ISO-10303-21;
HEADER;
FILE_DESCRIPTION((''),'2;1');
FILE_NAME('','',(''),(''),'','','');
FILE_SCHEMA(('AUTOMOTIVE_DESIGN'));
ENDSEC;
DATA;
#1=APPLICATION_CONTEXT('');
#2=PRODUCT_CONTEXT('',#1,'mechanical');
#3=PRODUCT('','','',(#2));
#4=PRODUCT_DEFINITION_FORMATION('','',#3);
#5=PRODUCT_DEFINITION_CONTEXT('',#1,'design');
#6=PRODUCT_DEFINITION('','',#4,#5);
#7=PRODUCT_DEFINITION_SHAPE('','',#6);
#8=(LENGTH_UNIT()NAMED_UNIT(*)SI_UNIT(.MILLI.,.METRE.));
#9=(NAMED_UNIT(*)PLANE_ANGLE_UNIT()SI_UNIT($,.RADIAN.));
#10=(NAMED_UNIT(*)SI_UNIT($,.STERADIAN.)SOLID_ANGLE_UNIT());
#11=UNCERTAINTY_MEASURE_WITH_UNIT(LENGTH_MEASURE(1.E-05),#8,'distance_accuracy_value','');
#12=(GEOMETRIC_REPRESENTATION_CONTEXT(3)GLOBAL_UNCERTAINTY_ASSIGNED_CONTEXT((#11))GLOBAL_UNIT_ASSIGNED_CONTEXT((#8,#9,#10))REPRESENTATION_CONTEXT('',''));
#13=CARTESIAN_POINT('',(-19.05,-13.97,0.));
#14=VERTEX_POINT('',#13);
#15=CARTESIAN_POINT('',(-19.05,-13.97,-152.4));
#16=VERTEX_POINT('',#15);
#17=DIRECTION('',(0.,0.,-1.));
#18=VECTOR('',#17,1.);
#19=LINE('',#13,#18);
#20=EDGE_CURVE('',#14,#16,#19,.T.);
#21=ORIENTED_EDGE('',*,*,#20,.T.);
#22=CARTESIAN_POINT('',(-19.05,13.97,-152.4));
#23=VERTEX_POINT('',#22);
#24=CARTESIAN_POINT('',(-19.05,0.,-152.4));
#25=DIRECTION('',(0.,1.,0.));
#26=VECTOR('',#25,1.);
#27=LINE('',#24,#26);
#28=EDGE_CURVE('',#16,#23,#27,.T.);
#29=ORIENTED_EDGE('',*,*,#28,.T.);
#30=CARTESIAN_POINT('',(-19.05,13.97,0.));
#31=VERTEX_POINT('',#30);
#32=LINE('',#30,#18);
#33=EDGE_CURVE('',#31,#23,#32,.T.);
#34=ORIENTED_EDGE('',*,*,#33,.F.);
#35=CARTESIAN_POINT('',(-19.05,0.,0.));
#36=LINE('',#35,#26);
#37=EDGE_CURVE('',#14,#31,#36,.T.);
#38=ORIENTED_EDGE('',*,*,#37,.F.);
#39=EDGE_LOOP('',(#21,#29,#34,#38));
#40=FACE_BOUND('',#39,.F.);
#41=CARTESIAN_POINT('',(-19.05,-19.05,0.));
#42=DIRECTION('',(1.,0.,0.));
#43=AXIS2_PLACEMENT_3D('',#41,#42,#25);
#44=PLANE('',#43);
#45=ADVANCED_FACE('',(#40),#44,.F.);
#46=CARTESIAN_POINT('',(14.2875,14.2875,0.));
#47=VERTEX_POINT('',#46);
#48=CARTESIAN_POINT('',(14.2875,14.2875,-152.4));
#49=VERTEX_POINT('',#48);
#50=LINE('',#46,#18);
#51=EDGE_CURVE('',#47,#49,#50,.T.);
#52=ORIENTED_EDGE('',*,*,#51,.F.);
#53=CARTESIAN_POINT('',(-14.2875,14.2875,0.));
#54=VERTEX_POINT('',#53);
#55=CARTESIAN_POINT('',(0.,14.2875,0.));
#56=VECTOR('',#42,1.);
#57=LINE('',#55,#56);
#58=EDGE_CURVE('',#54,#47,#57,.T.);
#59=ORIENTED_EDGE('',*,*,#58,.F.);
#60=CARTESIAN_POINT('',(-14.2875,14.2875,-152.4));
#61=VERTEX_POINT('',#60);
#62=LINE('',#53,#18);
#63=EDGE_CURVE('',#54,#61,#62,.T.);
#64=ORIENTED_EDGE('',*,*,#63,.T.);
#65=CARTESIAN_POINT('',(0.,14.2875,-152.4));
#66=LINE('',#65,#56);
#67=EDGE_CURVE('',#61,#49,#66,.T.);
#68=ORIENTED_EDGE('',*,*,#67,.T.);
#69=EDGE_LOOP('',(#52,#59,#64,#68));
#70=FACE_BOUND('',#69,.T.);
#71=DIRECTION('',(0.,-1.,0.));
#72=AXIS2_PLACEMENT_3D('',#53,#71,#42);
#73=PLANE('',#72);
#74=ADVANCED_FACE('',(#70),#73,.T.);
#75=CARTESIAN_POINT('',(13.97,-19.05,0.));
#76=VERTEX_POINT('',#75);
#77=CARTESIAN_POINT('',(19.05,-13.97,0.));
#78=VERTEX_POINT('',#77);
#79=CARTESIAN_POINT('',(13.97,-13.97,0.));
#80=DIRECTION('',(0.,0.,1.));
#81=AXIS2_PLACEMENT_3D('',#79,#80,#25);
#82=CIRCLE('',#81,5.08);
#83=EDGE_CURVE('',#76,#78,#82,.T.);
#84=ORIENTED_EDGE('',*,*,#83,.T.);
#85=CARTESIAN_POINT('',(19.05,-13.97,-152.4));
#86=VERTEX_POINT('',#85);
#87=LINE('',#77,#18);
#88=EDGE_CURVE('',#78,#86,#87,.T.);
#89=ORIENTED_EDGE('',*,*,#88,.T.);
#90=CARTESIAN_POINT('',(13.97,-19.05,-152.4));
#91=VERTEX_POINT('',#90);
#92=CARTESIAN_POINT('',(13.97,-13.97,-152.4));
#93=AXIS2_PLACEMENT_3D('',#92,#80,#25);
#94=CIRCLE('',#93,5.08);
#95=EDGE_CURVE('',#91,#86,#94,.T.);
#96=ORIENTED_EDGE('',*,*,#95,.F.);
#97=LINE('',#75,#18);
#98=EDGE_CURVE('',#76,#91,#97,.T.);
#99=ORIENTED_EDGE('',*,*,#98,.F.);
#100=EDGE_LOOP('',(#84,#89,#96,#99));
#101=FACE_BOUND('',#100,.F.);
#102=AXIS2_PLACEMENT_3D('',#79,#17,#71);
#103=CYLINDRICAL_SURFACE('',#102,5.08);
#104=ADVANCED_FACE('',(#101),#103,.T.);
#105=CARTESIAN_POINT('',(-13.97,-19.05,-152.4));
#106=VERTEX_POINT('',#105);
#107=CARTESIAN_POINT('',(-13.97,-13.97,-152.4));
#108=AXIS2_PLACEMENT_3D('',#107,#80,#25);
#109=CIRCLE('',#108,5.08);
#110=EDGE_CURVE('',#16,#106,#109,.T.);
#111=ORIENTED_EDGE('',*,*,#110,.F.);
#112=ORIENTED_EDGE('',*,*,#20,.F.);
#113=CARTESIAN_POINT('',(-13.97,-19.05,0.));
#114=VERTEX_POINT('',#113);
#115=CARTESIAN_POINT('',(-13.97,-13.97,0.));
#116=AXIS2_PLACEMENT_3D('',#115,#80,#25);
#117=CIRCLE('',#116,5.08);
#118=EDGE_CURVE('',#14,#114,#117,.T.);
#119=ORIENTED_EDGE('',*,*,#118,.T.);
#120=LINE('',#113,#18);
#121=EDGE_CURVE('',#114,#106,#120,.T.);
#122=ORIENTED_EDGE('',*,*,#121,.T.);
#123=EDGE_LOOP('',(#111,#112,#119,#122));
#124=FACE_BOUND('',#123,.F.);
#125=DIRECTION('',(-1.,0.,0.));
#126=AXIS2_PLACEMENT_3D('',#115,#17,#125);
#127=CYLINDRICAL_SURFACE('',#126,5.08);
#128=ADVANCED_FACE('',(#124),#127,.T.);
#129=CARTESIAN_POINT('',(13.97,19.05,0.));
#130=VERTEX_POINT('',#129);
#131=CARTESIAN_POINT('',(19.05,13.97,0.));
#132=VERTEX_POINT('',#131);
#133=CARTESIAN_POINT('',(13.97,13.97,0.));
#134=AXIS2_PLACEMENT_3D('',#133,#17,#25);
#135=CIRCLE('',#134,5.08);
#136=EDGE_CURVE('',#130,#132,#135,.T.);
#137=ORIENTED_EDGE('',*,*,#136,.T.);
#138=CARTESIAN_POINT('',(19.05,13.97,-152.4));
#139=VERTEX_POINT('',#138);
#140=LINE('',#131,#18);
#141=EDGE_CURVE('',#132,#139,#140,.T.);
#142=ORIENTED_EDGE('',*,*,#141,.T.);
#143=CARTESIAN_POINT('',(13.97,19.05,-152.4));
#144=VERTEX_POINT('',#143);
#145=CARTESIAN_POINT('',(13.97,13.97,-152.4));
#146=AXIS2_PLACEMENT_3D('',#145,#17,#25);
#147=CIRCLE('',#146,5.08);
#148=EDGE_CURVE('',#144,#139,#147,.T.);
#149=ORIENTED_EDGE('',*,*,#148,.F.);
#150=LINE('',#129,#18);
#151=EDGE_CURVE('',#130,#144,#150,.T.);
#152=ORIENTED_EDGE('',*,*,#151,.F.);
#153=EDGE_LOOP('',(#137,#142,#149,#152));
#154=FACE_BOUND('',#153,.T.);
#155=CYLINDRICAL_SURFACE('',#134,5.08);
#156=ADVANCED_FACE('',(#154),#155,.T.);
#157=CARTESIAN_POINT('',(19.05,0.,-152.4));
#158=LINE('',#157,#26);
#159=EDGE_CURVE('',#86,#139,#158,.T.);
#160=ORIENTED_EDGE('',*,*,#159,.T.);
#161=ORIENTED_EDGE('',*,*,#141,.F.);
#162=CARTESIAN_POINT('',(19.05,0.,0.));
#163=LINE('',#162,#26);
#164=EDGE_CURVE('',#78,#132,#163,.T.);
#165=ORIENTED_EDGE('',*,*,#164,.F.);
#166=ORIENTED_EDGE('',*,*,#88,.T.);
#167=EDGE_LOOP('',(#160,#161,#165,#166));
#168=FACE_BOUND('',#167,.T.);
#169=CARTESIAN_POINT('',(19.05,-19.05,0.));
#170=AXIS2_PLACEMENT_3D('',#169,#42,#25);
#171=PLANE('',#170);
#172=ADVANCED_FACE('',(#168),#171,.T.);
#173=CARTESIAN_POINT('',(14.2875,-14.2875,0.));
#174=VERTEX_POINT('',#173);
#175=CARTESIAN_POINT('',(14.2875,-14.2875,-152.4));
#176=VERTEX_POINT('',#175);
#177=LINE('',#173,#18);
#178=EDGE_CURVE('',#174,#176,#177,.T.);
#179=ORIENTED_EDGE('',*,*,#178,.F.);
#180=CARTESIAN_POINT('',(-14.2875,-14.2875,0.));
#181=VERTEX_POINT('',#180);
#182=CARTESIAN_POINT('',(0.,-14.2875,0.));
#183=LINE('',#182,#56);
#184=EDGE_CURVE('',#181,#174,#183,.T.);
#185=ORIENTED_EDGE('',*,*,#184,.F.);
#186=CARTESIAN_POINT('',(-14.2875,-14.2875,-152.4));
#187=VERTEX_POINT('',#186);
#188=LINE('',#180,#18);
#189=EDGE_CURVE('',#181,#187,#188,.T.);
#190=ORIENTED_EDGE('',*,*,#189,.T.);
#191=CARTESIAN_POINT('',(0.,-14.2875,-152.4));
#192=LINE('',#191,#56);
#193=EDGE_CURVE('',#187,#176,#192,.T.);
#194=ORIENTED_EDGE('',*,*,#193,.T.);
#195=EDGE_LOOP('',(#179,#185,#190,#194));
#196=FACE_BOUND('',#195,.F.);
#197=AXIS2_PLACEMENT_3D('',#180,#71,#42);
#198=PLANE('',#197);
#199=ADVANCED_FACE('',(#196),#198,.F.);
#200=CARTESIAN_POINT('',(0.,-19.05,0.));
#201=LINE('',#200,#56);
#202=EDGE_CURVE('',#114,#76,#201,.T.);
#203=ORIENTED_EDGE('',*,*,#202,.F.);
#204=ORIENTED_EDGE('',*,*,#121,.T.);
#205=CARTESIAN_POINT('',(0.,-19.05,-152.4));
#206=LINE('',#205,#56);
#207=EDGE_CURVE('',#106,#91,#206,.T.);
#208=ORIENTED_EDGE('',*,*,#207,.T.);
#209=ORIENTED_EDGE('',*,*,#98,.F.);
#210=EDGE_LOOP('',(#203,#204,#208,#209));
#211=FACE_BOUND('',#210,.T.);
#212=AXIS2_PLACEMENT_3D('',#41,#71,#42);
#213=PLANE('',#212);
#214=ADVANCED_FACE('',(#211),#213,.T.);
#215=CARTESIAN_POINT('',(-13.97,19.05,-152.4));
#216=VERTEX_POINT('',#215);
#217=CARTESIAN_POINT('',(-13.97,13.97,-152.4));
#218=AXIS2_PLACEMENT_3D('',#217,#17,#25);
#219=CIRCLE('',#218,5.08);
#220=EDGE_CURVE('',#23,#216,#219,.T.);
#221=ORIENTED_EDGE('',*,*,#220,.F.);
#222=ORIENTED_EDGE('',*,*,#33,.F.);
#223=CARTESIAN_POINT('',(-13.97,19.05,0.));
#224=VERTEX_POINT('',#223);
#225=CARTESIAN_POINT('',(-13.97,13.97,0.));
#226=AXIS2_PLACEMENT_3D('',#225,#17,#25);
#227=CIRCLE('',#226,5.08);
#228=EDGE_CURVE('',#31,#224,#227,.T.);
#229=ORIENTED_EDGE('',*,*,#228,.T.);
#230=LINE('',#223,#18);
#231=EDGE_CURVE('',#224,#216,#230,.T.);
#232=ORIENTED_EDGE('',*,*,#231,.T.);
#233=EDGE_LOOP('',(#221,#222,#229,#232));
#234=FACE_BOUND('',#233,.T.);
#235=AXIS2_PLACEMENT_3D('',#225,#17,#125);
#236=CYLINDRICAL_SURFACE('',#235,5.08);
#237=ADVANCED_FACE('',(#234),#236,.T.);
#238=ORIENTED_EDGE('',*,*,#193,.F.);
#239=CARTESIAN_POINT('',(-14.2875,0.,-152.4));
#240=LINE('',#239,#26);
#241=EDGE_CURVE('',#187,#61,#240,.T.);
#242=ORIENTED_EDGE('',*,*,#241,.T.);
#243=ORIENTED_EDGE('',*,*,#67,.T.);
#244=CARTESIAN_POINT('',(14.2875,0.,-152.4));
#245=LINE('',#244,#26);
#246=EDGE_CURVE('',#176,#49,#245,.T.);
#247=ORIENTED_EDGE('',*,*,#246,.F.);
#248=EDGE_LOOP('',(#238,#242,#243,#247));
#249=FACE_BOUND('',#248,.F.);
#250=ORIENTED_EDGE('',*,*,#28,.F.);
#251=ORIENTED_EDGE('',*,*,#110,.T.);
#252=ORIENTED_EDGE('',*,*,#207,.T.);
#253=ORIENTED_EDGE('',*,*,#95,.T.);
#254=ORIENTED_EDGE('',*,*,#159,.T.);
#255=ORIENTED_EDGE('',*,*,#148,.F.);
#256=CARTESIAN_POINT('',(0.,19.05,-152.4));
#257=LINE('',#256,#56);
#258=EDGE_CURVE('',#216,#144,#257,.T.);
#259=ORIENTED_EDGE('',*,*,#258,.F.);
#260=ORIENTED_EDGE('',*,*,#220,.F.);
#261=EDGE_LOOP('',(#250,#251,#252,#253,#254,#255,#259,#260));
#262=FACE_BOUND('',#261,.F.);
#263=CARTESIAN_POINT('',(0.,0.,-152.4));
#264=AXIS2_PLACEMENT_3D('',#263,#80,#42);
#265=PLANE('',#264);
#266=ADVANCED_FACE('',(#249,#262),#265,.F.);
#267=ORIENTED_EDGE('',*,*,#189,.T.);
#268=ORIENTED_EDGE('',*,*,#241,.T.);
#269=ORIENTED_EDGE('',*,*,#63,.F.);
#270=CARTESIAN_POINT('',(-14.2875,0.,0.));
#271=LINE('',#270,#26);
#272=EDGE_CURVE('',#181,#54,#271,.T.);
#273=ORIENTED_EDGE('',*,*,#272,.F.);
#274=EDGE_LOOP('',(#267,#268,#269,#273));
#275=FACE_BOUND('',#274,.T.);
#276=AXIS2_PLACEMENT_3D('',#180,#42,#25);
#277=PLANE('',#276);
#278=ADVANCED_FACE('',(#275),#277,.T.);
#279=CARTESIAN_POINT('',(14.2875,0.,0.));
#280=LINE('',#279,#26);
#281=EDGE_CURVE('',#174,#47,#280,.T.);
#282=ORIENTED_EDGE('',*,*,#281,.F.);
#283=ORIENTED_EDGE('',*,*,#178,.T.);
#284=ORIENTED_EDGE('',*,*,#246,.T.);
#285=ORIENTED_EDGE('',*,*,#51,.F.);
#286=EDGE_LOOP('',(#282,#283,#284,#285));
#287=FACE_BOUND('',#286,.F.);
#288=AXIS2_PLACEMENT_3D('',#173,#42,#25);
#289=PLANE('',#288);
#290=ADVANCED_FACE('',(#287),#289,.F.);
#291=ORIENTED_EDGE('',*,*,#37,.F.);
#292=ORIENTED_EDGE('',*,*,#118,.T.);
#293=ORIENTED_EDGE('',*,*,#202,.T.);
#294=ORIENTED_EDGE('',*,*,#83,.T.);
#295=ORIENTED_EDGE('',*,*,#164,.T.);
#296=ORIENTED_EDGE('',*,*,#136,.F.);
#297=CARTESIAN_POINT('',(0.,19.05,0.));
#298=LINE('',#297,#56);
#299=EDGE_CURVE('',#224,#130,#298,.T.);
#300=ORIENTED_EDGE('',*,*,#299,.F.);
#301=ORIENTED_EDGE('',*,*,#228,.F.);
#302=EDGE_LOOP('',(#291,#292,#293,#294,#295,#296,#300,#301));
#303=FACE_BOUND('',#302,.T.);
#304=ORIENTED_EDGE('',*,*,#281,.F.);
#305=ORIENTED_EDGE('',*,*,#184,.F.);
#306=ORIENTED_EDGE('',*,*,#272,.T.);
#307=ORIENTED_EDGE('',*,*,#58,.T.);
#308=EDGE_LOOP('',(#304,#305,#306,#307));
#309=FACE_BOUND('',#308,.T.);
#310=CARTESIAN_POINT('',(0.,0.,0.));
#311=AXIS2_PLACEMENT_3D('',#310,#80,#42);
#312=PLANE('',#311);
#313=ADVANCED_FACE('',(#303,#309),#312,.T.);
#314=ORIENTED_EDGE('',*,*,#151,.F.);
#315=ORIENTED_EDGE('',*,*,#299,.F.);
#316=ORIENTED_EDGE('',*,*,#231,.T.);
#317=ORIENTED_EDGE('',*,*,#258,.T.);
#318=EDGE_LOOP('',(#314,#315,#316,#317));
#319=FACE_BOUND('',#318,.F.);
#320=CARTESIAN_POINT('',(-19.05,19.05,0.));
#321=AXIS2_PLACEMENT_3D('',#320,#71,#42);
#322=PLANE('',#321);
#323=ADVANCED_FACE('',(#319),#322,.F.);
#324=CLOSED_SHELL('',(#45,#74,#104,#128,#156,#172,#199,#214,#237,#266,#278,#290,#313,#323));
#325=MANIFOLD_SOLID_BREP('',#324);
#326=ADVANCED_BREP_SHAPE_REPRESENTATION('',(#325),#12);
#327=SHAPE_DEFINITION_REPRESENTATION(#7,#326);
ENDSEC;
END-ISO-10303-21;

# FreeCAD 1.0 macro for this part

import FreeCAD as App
import Part
import Sketcher
Q = App.Units.Quantity


def edges_at(feature, points):
    """Names of the edges that pass closest to the given points."""
    edges = feature.Shape.Edges
    near = lambda p: min(range(len(edges)), key=lambda i: edges[i].distToShape(Part.Vertex(*p))[0])
    return sorted({f"Edge{near(p) + 1}" for p in points})


def add_polygon(sketch, points):
    """Adds a closed chain of lines whose ends are joined by coincident constraints."""
    first, n = sketch.GeometryCount, len(points)
    for a, b in zip(points, points[1:] + points[:1]):
        sketch.addGeometry(Part.LineSegment(App.Vector(*a, 0), App.Vector(*b, 0)), False)
    for i in range(n):
        sketch.addConstraint(Sketcher.Constraint("Coincident", first + i, 2, first + (i + 1) % n, 1))

doc = App.newDocument("Part")
body = doc.addObject("PartDesign::Body", "Body")

# Sketch on XY plane
sketch1 = body.newObject("Sketcher::SketchObject", "Sketch")
sketch1.AttachmentSupport = (doc.getObject("XY_Plane"), [""])
sketch1.MapMode = "FlatFace"
add_polygon(sketch1, [(-19, 19), (-19, -19), (19, -19), (19, 19)])  # lines 0-3
add_polygon(sketch1, [(14, -14), (-14, -14), (-14, 14), (14, 14)])  # lines 4-7
sketch1.addConstraint([
    Sketcher.Constraint("Vertical", 0),
    Sketcher.Constraint("Horizontal", 1),
    Sketcher.Constraint("Vertical", 2),
    Sketcher.Constraint("Horizontal", 3),
    Sketcher.Constraint("Horizontal", 4),
    Sketcher.Constraint("Vertical", 5),
    Sketcher.Constraint("Horizontal", 6),
    Sketcher.Constraint("Vertical", 7),
    Sketcher.Constraint("Symmetric", 0, 2, 2, 2, -1, 1),
    Sketcher.Constraint("Symmetric", 4, 2, 6, 2, -1, 1),
    Sketcher.Constraint("Equal", 3, 0),
    Sketcher.Constraint("Equal", 6, 5),
    Sketcher.Constraint("DistanceX", 1, 1, 1, 2, Q("1.5 in")),
    Sketcher.Constraint("DistanceX", 4, 2, 4, 1, Q("1.125 in")),
])
pad1 = body.newObject("PartDesign::Pad", "Pad")
pad1.Profile = sketch1
pad1.Length = Q("6 in")
pad1.Reversed = True
doc.recompute()

fillet = body.newObject("PartDesign::Fillet", "Fillet")
fillet.Base = (pad1, edges_at(pad1, [
    (19.05, -19.05, -76.2),
    (19.05, 19.05, -76.2),
    (-19.05, -19.05, -76.2),
    (-19.05, 19.05, -76.2),
]))
fillet.Radius = Q("0.2 in")

doc.recompute()
